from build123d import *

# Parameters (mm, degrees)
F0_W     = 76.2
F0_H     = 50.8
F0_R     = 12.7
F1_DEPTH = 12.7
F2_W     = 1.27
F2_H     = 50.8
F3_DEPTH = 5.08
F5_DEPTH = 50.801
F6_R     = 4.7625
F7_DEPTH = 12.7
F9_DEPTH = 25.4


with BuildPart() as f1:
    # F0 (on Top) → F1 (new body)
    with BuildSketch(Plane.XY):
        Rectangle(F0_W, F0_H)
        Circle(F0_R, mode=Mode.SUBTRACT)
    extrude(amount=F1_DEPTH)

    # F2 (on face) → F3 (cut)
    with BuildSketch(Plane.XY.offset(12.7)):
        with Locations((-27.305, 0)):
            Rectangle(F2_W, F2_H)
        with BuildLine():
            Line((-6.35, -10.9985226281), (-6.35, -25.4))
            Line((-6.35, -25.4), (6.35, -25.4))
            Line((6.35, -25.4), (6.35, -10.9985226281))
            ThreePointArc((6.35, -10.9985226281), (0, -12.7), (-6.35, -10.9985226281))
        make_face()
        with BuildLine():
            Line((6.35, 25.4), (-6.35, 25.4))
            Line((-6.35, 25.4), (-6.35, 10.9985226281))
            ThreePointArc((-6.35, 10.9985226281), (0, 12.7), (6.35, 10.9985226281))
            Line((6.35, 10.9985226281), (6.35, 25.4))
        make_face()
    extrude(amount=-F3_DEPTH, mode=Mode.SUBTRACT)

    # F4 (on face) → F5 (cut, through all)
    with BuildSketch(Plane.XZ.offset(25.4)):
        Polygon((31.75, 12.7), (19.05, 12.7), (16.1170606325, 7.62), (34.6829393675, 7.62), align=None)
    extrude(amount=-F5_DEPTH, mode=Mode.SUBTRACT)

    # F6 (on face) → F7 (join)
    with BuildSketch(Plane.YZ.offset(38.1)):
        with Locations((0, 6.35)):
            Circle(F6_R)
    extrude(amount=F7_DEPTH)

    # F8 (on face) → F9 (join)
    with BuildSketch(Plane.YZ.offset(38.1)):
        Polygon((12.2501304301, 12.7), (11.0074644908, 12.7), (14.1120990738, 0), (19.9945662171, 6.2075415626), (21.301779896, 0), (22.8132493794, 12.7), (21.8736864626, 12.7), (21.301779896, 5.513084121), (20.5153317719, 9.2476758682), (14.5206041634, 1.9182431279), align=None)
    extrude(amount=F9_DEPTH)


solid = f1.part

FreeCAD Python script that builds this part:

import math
import FreeCAD as App
import Part
import Sketcher
Q = App.Units.Quantity

doc = App.newDocument("Part")
body = doc.addObject("PartDesign::Body", "Body")

# Sketch on XY plane
sketch1 = body.newObject("Sketcher::SketchObject", "Sketch")
sketch1.AttachmentSupport = (doc.getObject("XY_Plane"), [""])
sketch1.MapMode = "FlatFace"
sketch1.addGeometry([
    Part.LineSegment(App.Vector(-38, 25, 0), App.Vector(-38, -25, 0)),  # 0
    Part.LineSegment(App.Vector(-38, -25, 0), App.Vector(38, -25, 0)),  # 1
    Part.LineSegment(App.Vector(38, -25, 0), App.Vector(38, 25, 0)),  # 2
    Part.LineSegment(App.Vector(38, 25, 0), App.Vector(-38, 25, 0)),  # 3
    Part.Circle(App.Vector(0, 0, 0), App.Vector(0, 0, 1), 13),  # 4
], False)
sketch1.addConstraint([
    Sketcher.Constraint("Coincident", 0, 2, 1, 1),
    Sketcher.Constraint("Coincident", 1, 2, 2, 1),
    Sketcher.Constraint("Coincident", 2, 2, 3, 1),
    Sketcher.Constraint("Coincident", 3, 2, 0, 1),
    Sketcher.Constraint("Vertical", 0),
    Sketcher.Constraint("Horizontal", 1),
    Sketcher.Constraint("Vertical", 2),
    Sketcher.Constraint("Horizontal", 3),
    Sketcher.Constraint("Coincident", 4, 3, -1, 1),
    Sketcher.Constraint("Symmetric", 0, 2, 2, 2, -1, 1),
    Sketcher.Constraint("Diameter", 4, Q("1 in")),
    Sketcher.Constraint("DistanceX", 1, 1, 1, 2, Q("3 in")),
    Sketcher.Constraint("DistanceY", 0, 2, 0, 1, Q("2 in")),
])
pad1 = body.newObject("PartDesign::Pad", "Pad")
pad1.Profile = sketch1
pad1.Length = Q("0.5 in")

# Sketch on XY plane
sketch2 = body.newObject("Sketcher::SketchObject", "Sketch001")
sketch2.AttachmentSupport = (doc.getObject("XY_Plane"), [""])
sketch2.MapMode = "FlatFace"
sketch2.AttachmentOffset = App.Placement(App.Vector(0, 0, 0.5 * 25.4), App.Rotation())
sketch2.addGeometry([
    Part.LineSegment(App.Vector(-27.9, 25.4, 0), App.Vector(-27.9, -25.4, 0)),  # 0
    Part.LineSegment(App.Vector(-27.9, -25.4, 0), App.Vector(-26.7, -25.4, 0)),  # 1
    Part.LineSegment(App.Vector(-26.7, -25.4, 0), App.Vector(-26.7, 25.4, 0)),  # 2
    Part.LineSegment(App.Vector(-26.7, 25.4, 0), App.Vector(-27.9, 25.4, 0)),  # 3
    Part.LineSegment(App.Vector(-6.3, -11, 0), App.Vector(-6.3, -25.4, 0)),  # 4
    Part.LineSegment(App.Vector(-6.3, -25.4, 0), App.Vector(6.3, -25.4, 0)),  # 5
    Part.LineSegment(App.Vector(6.3, -25.4, 0), App.Vector(6.3, -11, 0)),  # 6
    Part.ArcOfCircle(Part.Circle(App.Vector(0, 0, 0), App.Vector(0, 0, 1), 12.7), math.radians(-120), math.radians(-60)),  # 7
    Part.LineSegment(App.Vector(6.3, 25.4, 0), App.Vector(-6.3, 25.4, 0)),  # 8
    Part.LineSegment(App.Vector(-6.3, 25.4, 0), App.Vector(-6.3, 11, 0)),  # 9
    Part.ArcOfCircle(Part.Circle(App.Vector(0, 0, 0), App.Vector(0, 0, 1), 12.7), math.radians(60), math.radians(120)),  # 10
    Part.LineSegment(App.Vector(6.3, 11, 0), App.Vector(6.3, 25.4, 0)),  # 11
], False)
sketch2.addConstraint([
    Sketcher.Constraint("Coincident", 0, 2, 1, 1),
    Sketcher.Constraint("Coincident", 1, 2, 2, 1),
    Sketcher.Constraint("Coincident", 2, 2, 3, 1),
    Sketcher.Constraint("Coincident", 3, 2, 0, 1),
    Sketcher.Constraint("Coincident", 4, 2, 5, 1),
    Sketcher.Constraint("Coincident", 5, 2, 6, 1),
    Sketcher.Constraint("Coincident", 6, 2, 7, 2),
    Sketcher.Constraint("Coincident", 7, 1, 4, 1),
    Sketcher.Constraint("Coincident", 8, 2, 9, 1),
    Sketcher.Constraint("Coincident", 9, 2, 10, 2),
    Sketcher.Constraint("Coincident", 10, 1, 11, 1),
    Sketcher.Constraint("Coincident", 11, 2, 8, 1),
    Sketcher.Constraint("Vertical", 0),
    Sketcher.Constraint("Horizontal", 1),
    Sketcher.Constraint("Vertical", 2),
    Sketcher.Constraint("Horizontal", 3),
    Sketcher.Constraint("Vertical", 4),
    Sketcher.Constraint("Horizontal", 5),
    Sketcher.Constraint("Vertical", 6),
    Sketcher.Constraint("Horizontal", 8),
    Sketcher.Constraint("Vertical", 9),
    Sketcher.Constraint("Vertical", 11),
    Sketcher.Constraint("Coincident", 7, 3, -1, 1),
    Sketcher.Constraint("Coincident", 10, 3, -1, 1),
    Sketcher.Constraint("Equal", 7, 10),
    Sketcher.Constraint("Symmetric", 5, 2, 8, 2, -1, 1),
    Sketcher.Constraint("Horizontal", 1, 2, 4, 2),
    Sketcher.Constraint("Horizontal", 6, 2, 7, 1),
    Sketcher.Constraint("Horizontal", 3, 2, 8, 2),
    Sketcher.Constraint("Horizontal", 9, 2, 10, 1),
    Sketcher.Constraint("Radius", 7, Q("0.5 in")),
    Sketcher.Constraint("DistanceY", 0, 2, 0, 1, Q("2 in")),
    Sketcher.Constraint("DistanceX", 5, 1, 5, 2, Q("0.5 in")),
    Sketcher.Constraint("DistanceX", 1, 1, 1, 2, Q("0.05 in")),
    Sketcher.Constraint("DistanceX", 0, 2, -1, 1, Q("1.1 in")),
])
pocket1 = body.newObject("PartDesign::Pocket", "Pocket")
pocket1.Profile = sketch2
pocket1.Length = Q("0.2 in")

# Sketch on XZ plane
sketch3 = body.newObject("Sketcher::SketchObject", "Sketch002")
sketch3.AttachmentSupport = (doc.getObject("XZ_Plane"), [""])
sketch3.MapMode = "FlatFace"
sketch3.AttachmentOffset = App.Placement(App.Vector(0, 0, 1 * 25.4), App.Rotation())
sketch3.addGeometry([
    Part.LineSegment(App.Vector(32, 13, 0), App.Vector(19, 13, 0)),
    Part.LineSegment(App.Vector(19, 13, 0), App.Vector(16, 8, 0)),
    Part.LineSegment(App.Vector(16, 8, 0), App.Vector(35, 8, 0)),
    Part.LineSegment(App.Vector(35, 8, 0), App.Vector(32, 13, 0)),
], False)
sketch3.addConstraint([
    Sketcher.Constraint("Coincident", 0, 2, 1, 1),
    Sketcher.Constraint("Coincident", 1, 2, 2, 1),
    Sketcher.Constraint("Coincident", 2, 2, 3, 1),
    Sketcher.Constraint("Coincident", 3, 2, 0, 1),
    Sketcher.Constraint("Horizontal", 0),
    Sketcher.Constraint("Horizontal", 2),
    Sketcher.Constraint("Equal", 1, 3),
    Sketcher.Constraint("DistanceX", 0, 2, 0, 1, Q("0.5 in")),
    Sketcher.Constraint("Angle", 1, Q("-120 deg")),
    Sketcher.Constraint("DistanceY", -1, 1, 0, 2, Q("0.5 in")),
    Sketcher.Constraint("DistanceY", -1, 1, 1, 2, Q("0.3 in")),
    Sketcher.Constraint("DistanceX", -1, 1, 0, 2, Q("0.75 in")),
])
pocket2 = body.newObject("PartDesign::Pocket", "Pocket001")
pocket2.Profile = sketch3
pocket2.Type = "ThroughAll"

# Sketch on YZ plane
sketch4 = body.newObject("Sketcher::SketchObject", "Sketch003")
sketch4.AttachmentSupport = (doc.getObject("YZ_Plane"), [""])
sketch4.MapMode = "FlatFace"
sketch4.AttachmentOffset = App.Placement(App.Vector(0, 0, 1.5 * 25.4), App.Rotation())
sketch4.addGeometry(Part.Circle(App.Vector(0, 6.3, 0), App.Vector(0, 0, 1), 4.8), False)
sketch4.addConstraint([
    Sketcher.Constraint("PointOnObject", 0, 3, -2),
    Sketcher.Constraint("Diameter", 0, Q("0.375 in")),
    Sketcher.Constraint("DistanceY", -1, 1, 0, 3, Q("0.25 in")),
])
pad2 = body.newObject("PartDesign::Pad", "Pad001")
pad2.Profile = sketch4
pad2.Length = Q("0.5 in")

# Sketch on YZ plane
sketch5 = body.newObject("Sketcher::SketchObject", "Sketch004")
sketch5.AttachmentSupport = (doc.getObject("YZ_Plane"), [""])
sketch5.MapMode = "FlatFace"
sketch5.AttachmentOffset = App.Placement(App.Vector(0, 0, 1.5 * 25.4), App.Rotation())
sketch5.addGeometry([
    Part.LineSegment(App.Vector(12.3, 12.7, 0), App.Vector(11, 12.7, 0)),  # 0
    Part.LineSegment(App.Vector(11, 12.7, 0), App.Vector(14.1, 0, 0)),  # 1
    Part.LineSegment(App.Vector(14.1, 0, 0), App.Vector(20, 6.2, 0)),  # 2
    Part.LineSegment(App.Vector(20, 6.2, 0), App.Vector(21.3, 0, 0)),  # 3
    Part.LineSegment(App.Vector(21.3, 0, 0), App.Vector(22.8, 12.7, 0)),  # 4
    Part.LineSegment(App.Vector(22.8, 12.7, 0), App.Vector(21.9, 12.7, 0)),  # 5
    Part.LineSegment(App.Vector(21.9, 12.7, 0), App.Vector(21.3, 5.5, 0)),  # 6
    Part.LineSegment(App.Vector(21.3, 5.5, 0), App.Vector(20.5, 9.2, 0)),  # 7
    Part.LineSegment(App.Vector(20.5, 9.2, 0), App.Vector(14.5, 1.9, 0)),  # 8
    Part.LineSegment(App.Vector(14.5, 1.9, 0), App.Vector(12.3, 12.7, 0)),  # 9
], False)
sketch5.addConstraint([
    Sketcher.Constraint("Coincident", 0, 2, 1, 1),
    Sketcher.Constraint("Coincident", 1, 2, 2, 1),
    Sketcher.Constraint("Coincident", 2, 2, 3, 1),
    Sketcher.Constraint("Coincident", 3, 2, 4, 1),
    Sketcher.Constraint("Coincident", 4, 2, 5, 1),
    Sketcher.Constraint("Coincident", 5, 2, 6, 1),
    Sketcher.Constraint("Coincident", 6, 2, 7, 1),
    Sketcher.Constraint("Coincident", 7, 2, 8, 1),
    Sketcher.Constraint("Coincident", 8, 2, 9, 1),
    Sketcher.Constraint("Coincident", 9, 2, 0, 1),
    Sketcher.Constraint("Horizontal", 0),
    Sketcher.Constraint("Horizontal", 5),
    Sketcher.Constraint("PointOnObject", 1, 2, -1),
    Sketcher.Constraint("PointOnObject", 3, 2, -1),
    Sketcher.Constraint("Parallel", 3, 7),
    Sketcher.Constraint("Parallel", 7, 9),
    Sketcher.Constraint("Horizontal", 0, 2, 4, 2),
    Sketcher.Constraint("Vertical", 3, 2, 6, 2),
    Sketcher.Constraint("DistanceY", -1, 1, 0, 2, Q("0.5 in")),
    Sketcher.Constraint("Distance", 7, 3.816501),
    Sketcher.Constraint("DistanceX", -1, 1, 1, 2, 14.112099),
    Sketcher.Constraint("DistanceX", 0, 2, 2, 2, 8.987102),
    Sketcher.Constraint("DistanceY", 8, 2, 2, 2, 4.289298),
    Sketcher.Constraint("DistanceX", 9, 2, 7, 2, 8.265201),
    Sketcher.Constraint("Distance", 3, 6.343688),
    Sketcher.Constraint("DistanceX", 0, 2, 0, 1, 1.242666),
    Sketcher.Constraint("DistanceX", 5, 2, 5, 1, 0.939563),
    Sketcher.Constraint("DistanceX", -1, 1, 3, 2, 21.30178),
    Sketcher.Constraint("DistanceX", -1, 1, 4, 2, 22.813249),
    Sketcher.Constraint("DistanceY", 8, 2, 6, 2, 3.594841),
])
pad3 = body.newObject("PartDesign::Pad", "Pad002")
pad3.Profile = sketch5
pad3.Length = Q("1 in")

doc.recompute()
